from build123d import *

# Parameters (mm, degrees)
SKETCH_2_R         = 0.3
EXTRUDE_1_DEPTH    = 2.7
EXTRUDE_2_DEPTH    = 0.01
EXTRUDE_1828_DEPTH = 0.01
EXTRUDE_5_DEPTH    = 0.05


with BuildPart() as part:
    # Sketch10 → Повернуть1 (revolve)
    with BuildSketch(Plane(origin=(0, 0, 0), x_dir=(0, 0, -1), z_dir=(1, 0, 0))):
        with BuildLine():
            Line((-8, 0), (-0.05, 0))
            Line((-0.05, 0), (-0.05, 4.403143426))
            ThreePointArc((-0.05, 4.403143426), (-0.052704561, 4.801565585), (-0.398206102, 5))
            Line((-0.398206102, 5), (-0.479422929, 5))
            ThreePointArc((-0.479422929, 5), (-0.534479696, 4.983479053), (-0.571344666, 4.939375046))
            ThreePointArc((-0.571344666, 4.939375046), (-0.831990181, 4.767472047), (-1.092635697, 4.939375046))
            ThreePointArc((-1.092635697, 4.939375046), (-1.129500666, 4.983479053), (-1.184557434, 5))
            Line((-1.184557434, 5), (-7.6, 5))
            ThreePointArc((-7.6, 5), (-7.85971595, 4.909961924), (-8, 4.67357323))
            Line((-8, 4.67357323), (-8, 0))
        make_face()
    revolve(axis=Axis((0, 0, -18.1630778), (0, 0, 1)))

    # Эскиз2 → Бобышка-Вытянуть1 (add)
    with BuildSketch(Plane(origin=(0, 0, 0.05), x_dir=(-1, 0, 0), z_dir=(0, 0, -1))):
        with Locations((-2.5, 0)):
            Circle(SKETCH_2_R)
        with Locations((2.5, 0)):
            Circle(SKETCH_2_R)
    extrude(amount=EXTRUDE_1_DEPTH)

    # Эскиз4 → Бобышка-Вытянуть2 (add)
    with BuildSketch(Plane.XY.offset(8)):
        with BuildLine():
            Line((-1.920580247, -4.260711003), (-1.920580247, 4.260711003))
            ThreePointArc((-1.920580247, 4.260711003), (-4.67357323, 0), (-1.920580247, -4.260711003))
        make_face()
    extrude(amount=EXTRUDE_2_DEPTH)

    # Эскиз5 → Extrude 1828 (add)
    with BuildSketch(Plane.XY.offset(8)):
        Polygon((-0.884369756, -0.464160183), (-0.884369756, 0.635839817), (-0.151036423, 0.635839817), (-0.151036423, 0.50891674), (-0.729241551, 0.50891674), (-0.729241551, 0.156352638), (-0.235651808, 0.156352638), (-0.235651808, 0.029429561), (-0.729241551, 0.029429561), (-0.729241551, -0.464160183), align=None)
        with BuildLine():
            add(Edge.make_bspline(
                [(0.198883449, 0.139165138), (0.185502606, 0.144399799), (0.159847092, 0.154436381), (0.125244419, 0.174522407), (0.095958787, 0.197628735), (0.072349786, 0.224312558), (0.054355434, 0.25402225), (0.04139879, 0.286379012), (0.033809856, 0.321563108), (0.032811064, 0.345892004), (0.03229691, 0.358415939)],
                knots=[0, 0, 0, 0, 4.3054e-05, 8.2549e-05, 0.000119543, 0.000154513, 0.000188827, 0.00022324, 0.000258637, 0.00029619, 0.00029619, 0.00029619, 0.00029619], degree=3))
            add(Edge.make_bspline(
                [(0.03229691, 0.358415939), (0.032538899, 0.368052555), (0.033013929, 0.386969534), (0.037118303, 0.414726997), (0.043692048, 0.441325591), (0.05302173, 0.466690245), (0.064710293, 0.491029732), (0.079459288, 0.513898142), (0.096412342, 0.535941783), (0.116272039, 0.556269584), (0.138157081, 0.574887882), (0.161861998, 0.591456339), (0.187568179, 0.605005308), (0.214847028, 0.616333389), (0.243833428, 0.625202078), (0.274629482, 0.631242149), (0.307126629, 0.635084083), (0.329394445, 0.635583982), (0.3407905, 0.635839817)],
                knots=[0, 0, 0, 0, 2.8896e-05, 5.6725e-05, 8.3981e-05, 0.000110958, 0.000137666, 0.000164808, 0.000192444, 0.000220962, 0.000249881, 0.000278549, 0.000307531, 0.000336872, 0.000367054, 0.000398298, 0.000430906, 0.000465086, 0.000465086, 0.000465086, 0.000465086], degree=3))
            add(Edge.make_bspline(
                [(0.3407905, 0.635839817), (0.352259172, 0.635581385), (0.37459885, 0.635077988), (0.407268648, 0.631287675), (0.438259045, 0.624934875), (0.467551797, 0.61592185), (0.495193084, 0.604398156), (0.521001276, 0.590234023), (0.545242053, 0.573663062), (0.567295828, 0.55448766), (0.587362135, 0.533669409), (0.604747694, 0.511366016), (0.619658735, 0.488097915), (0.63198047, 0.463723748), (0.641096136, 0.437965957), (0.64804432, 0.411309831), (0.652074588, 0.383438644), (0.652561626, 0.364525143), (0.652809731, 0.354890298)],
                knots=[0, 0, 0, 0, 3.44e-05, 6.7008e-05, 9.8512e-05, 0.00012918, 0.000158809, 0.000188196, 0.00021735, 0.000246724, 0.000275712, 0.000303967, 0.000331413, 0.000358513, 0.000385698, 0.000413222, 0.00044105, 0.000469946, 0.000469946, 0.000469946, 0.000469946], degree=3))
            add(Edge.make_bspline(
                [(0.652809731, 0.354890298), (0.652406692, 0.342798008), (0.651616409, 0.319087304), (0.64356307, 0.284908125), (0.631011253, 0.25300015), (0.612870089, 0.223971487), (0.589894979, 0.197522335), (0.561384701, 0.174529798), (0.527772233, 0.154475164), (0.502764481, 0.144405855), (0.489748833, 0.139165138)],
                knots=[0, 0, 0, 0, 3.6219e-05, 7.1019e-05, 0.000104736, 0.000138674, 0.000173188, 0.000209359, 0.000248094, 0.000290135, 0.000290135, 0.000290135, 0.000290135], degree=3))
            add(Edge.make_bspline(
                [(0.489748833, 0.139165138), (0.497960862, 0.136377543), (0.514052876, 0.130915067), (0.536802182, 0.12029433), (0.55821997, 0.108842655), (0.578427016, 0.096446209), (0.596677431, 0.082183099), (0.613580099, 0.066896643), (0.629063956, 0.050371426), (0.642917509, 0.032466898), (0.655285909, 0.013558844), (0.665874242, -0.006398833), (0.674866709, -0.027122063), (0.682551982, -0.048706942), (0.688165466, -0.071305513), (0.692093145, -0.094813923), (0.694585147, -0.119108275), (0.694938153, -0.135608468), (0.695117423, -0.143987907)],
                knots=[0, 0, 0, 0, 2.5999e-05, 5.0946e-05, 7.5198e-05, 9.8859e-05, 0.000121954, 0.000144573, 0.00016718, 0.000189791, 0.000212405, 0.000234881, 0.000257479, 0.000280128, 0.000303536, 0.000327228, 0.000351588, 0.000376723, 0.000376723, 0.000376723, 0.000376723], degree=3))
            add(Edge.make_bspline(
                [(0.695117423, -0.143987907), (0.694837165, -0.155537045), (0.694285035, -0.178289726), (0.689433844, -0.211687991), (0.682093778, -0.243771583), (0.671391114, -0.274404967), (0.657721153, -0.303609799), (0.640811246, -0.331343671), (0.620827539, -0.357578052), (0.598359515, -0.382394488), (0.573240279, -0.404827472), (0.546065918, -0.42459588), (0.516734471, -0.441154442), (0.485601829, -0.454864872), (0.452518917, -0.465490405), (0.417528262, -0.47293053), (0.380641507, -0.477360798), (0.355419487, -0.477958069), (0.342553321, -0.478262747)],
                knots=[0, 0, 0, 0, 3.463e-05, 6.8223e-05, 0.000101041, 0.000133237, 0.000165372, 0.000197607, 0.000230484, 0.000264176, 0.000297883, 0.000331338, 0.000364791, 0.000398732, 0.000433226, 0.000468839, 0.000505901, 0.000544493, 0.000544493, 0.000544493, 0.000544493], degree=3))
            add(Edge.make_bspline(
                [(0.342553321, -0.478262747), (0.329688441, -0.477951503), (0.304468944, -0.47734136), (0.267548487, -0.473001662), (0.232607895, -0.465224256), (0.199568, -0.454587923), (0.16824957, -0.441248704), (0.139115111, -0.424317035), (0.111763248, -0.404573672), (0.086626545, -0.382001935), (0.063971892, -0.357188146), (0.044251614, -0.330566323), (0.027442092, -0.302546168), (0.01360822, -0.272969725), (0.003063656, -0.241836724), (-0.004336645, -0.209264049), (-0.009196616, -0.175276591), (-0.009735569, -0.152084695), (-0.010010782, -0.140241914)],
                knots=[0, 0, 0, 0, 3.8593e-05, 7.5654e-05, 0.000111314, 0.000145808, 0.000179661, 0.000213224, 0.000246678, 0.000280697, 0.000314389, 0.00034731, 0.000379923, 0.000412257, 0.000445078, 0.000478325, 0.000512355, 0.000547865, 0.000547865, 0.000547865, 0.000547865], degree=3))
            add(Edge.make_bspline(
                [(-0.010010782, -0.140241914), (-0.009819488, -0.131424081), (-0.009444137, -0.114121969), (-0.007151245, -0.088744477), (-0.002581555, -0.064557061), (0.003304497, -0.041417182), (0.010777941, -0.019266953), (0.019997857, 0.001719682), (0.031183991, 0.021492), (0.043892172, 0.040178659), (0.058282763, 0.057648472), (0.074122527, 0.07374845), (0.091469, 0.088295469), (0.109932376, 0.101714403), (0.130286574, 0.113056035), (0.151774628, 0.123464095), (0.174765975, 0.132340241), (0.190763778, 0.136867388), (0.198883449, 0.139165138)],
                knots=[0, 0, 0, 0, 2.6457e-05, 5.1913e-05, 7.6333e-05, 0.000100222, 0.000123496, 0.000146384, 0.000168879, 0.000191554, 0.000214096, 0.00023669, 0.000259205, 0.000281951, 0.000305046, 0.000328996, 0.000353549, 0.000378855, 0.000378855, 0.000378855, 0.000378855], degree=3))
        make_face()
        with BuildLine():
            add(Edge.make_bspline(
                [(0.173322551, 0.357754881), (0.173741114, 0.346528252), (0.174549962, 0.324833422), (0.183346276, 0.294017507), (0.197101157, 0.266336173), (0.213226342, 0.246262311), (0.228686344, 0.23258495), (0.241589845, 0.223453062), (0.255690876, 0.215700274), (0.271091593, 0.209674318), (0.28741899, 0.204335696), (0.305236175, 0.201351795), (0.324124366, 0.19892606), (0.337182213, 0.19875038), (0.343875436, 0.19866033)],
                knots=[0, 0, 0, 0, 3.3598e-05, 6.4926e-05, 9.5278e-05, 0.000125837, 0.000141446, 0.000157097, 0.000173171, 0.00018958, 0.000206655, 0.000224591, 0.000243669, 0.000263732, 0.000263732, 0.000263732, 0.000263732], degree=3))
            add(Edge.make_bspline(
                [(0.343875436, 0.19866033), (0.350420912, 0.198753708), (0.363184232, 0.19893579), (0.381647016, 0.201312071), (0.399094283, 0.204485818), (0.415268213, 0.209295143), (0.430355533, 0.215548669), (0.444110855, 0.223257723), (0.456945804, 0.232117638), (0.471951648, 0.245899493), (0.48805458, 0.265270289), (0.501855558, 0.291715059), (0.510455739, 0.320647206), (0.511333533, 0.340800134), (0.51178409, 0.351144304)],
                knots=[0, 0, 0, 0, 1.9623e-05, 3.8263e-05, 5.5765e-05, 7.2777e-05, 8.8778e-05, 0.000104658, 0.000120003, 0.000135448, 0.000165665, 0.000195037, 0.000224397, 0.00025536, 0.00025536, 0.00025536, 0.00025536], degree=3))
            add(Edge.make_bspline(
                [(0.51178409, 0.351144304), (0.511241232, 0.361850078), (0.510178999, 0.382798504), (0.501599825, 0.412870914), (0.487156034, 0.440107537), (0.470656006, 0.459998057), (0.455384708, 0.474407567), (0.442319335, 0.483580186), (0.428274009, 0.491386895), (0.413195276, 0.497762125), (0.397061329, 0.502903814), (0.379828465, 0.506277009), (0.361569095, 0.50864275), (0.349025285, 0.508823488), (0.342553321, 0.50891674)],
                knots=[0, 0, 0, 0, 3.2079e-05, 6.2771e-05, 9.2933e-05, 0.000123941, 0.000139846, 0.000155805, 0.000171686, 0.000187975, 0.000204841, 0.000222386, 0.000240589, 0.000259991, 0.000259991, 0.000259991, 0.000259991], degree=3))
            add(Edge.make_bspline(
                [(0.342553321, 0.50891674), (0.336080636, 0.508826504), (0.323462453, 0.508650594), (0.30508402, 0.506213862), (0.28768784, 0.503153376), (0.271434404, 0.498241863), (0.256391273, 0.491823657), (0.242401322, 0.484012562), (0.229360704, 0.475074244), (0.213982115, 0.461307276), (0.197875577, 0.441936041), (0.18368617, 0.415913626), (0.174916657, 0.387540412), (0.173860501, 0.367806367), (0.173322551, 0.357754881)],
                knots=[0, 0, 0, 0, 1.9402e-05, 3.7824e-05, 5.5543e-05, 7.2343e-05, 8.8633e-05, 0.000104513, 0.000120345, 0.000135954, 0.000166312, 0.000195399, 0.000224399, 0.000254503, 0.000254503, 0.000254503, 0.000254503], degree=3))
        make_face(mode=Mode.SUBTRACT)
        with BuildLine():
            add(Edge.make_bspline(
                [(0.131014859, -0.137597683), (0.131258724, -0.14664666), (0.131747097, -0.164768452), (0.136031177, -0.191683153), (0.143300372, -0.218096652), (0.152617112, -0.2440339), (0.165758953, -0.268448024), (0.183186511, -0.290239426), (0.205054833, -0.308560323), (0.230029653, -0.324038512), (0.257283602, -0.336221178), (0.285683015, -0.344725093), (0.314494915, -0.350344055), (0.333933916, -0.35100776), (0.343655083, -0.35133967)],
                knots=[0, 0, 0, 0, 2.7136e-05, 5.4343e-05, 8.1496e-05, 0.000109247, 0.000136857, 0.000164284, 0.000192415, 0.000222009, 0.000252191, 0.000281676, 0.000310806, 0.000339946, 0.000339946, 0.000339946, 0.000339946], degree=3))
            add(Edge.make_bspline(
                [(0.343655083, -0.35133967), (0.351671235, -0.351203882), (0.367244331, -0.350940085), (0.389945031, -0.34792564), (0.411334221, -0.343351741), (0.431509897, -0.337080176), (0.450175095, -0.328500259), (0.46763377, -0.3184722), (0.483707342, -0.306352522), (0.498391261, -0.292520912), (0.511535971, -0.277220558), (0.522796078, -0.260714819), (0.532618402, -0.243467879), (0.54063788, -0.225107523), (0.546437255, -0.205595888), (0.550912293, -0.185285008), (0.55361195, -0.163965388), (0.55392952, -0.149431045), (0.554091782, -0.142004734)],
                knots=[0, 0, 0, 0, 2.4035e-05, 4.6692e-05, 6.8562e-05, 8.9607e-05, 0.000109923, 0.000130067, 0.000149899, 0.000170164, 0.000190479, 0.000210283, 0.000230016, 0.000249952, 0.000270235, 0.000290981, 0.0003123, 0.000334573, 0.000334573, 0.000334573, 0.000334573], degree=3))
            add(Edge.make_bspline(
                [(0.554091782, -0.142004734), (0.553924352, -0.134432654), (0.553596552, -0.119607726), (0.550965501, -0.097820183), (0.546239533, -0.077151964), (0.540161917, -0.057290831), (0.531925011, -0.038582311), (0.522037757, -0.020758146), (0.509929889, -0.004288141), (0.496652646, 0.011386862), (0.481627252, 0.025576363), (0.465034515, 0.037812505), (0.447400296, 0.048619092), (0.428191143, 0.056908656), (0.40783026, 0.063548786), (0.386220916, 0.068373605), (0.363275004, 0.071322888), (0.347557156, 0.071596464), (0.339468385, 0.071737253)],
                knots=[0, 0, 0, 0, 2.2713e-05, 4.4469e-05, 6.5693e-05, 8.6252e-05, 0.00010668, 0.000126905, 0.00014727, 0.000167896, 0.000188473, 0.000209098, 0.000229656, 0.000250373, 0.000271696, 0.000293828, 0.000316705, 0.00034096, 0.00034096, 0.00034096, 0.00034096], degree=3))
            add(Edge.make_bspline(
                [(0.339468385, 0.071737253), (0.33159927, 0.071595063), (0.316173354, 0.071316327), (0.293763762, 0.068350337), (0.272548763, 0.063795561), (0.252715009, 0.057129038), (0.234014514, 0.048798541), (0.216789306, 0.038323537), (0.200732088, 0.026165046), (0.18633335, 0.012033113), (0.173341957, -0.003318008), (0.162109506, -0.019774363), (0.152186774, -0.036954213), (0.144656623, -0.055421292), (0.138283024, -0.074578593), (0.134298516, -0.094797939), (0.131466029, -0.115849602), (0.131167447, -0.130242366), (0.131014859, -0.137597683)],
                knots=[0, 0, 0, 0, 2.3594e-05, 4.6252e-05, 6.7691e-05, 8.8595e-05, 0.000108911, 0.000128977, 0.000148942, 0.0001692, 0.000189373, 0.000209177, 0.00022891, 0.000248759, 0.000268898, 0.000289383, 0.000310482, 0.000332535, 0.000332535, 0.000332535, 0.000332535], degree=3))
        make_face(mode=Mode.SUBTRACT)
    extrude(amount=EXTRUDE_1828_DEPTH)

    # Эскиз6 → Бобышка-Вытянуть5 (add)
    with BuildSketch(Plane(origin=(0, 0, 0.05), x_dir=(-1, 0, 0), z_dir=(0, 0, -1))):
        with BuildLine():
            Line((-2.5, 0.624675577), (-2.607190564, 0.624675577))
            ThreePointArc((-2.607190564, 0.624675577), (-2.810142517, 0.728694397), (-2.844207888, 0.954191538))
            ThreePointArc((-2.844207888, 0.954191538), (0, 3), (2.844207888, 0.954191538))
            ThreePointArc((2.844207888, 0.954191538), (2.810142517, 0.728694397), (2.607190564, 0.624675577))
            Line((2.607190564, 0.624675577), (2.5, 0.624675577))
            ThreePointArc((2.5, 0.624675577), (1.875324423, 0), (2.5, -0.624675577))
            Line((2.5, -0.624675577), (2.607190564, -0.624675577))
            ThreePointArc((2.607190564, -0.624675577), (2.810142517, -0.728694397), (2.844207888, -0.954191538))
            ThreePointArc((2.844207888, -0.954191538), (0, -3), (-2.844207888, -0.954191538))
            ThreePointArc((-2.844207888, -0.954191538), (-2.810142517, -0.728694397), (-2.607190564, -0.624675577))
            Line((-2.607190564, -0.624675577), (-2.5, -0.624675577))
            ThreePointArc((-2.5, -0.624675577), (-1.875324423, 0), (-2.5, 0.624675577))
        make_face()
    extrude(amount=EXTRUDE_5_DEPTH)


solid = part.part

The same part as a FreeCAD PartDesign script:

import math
import FreeCAD as App
import Part
import Sketcher


def add_polygon(sketch, points):
    """Adds a closed chain of lines whose ends are joined by coincident constraints."""
    first, n = sketch.GeometryCount, len(points)
    for a, b in zip(points, points[1:] + points[:1]):
        sketch.addGeometry(Part.LineSegment(App.Vector(*a, 0), App.Vector(*b, 0)), False)
    for i in range(n):
        sketch.addConstraint(Sketcher.Constraint("Coincident", first + i, 2, first + (i + 1) % n, 1))

doc = App.newDocument("Part")
params = doc.addObject("Spreadsheet::Sheet", "Params")
for row, (alias, value) in enumerate([
    ("sketch1_radius", "0.4 mm"),
    ("sketch1_radius2", "0.1 mm"),
    ("sketch1_height", "7.95 mm"),
    ("revolution_angle", "360 deg"),
    ("sketch2_diameter", "0.6 mm"),
    ("pad1_length", "2.7 mm"),
    ("pad2_length", "0.01 mm"),
    ("sketch4_height", "1.1 mm"),
    ("pad3_length", "0.01 mm"),
    ("sketch5_radius", "3 mm"),
    ("sketch5_radius2", "0.25 mm"),
    ("pad4_length", "0.05 mm"),
], start=1):
    params.set(f"A{row}", alias)
    params.set(f"B{row}", "=" + value)
    params.setAlias(f"B{row}", alias)

body = doc.addObject("PartDesign::Body", "Body")

sketch1 = doc.addObject("Sketcher::SketchObject", "Sketch")
body.addObject(sketch1)
sketch1.AttachmentSupport = (doc.YZ_Plane, [""])
sketch1.MapMode = "FlatFace"
sketch1.addGeometry(Part.LineSegment(App.Vector(0, 8, 0), App.Vector(0, 0.05, 0)), False)
sketch1.addGeometry(Part.LineSegment(App.Vector(0, 0.05, 0), App.Vector(4.403143, 0.05, 0)), False)
sketch1.addGeometry(Part.ArcOfCircle(Part.Circle(App.Vector(4.6, 0.398206, 0), App.Vector(0, 0, 1), 0.4), math.radians(-119.481429), math.radians(0)), False)
sketch1.addGeometry(Part.LineSegment(App.Vector(5, 0.398206, 0), App.Vector(5, 0.479423, 0)), False)
sketch1.addGeometry(Part.ArcOfCircle(Part.Circle(App.Vector(4.9, 0.479423, 0), App.Vector(0, 0, 1), 0.1), math.radians(0.000001), math.radians(66.811933)), False)
sketch1.addGeometry(Part.ArcOfCircle(Part.Circle(App.Vector(5.051024, 0.83199, 0), App.Vector(0, 0, 1), 0.283552), math.radians(113.188066), math.radians(246.811933)), False)
sketch1.addGeometry(Part.ArcOfCircle(Part.Circle(App.Vector(4.9, 1.184557, 0), App.Vector(0, 0, 1), 0.1), math.radians(-66.811934), math.radians(0)), False)
sketch1.addGeometry(Part.LineSegment(App.Vector(5, 1.184557, 0), App.Vector(5, 7.6, 0)), False)
sketch1.addGeometry(Part.ArcOfCircle(Part.Circle(App.Vector(4.600058, 7.606814, 0), App.Vector(0, 0, 1), 0.4), math.radians(-0.976029), math.radians(79.409522)), False)
sketch1.addGeometry(Part.LineSegment(App.Vector(4.673573, 8, 0), App.Vector(0, 8, 0)), False)
sketch1.addConstraint(Sketcher.Constraint("Coincident", 0, 2, 1, 1))
sketch1.addConstraint(Sketcher.Constraint("Coincident", 1, 2, 2, 1))
sketch1.addConstraint(Sketcher.Constraint("Tangent", 2, 2, 3, 1))
sketch1.addConstraint(Sketcher.Constraint("Tangent", 3, 2, 4, 1))
sketch1.addConstraint(Sketcher.Constraint("Tangent", 4, 2, 5, 2))
sketch1.addConstraint(Sketcher.Constraint("Tangent", 5, 1, 6, 1))
sketch1.addConstraint(Sketcher.Constraint("Tangent", 6, 2, 7, 1))
sketch1.addConstraint(Sketcher.Constraint("Coincident", 7, 2, 8, 1))
sketch1.addConstraint(Sketcher.Constraint("Coincident", 8, 2, 9, 1))
sketch1.addConstraint(Sketcher.Constraint("Coincident", 9, 2, 0, 1))
sketch1.addConstraint(Sketcher.Constraint("Vertical", 0))
sketch1.addConstraint(Sketcher.Constraint("Horizontal", 1))
sketch1.addConstraint(Sketcher.Constraint("Vertical", 3))
sketch1.addConstraint(Sketcher.Constraint("Vertical", 7))
sketch1.addConstraint(Sketcher.Constraint("Horizontal", 9))
sketch1.addConstraint(Sketcher.Constraint("Equal", 4, 6))
sketch1.addConstraint(Sketcher.Constraint("Equal", 2, 8))
sketch1.addConstraint(Sketcher.Constraint("PointOnObject", 0, 2, -2))
sketch1.addConstraint(Sketcher.Constraint("Vertical", 4, 3, 6, 3))
sketch1.addConstraint(Sketcher.Constraint("Radius", 2, 0.4))
sketch1.addConstraint(Sketcher.Constraint("Radius", 4, 0.1))
sketch1.addConstraint(Sketcher.Constraint("DistanceX", -1, 1, 2, 2, 5.0))
sketch1.addConstraint(Sketcher.Constraint("DistanceY", -1, 1, 8, 2, 8.0))
sketch1.addConstraint(Sketcher.Constraint("DistanceY", 0, 2, 0, 1, 7.95))
sketch1.addConstraint(Sketcher.Constraint("DistanceY", -1, 1, 7, 2, 7.6))
sketch1.addConstraint(Sketcher.Constraint("Radius", 5, 0.283552))
sketch1.addConstraint(Sketcher.Constraint("DistanceX", 8, 2, 5, 1, 0.265802))
sketch1.addConstraint(Sketcher.Constraint("DistanceX", 1, 1, 1, 2, 4.403143))
sketch1.addConstraint(Sketcher.Constraint("DistanceX", 9, 2, 9, 1, 4.673573))
sketch1.addConstraint(Sketcher.Constraint("DistanceY", 3, 1, 3, 2, 0.081217))
sketch1.setExpression("Constraints[19]", "Params.sketch1_radius")
sketch1.setExpression("Constraints[20]", "Params.sketch1_radius2")
sketch1.setExpression("Constraints[23]", "Params.sketch1_height")
revolution = doc.addObject("PartDesign::Revolution", "Revolution")
body.addObject(revolution)
revolution.Profile = sketch1
revolution.ReferenceAxis = (sketch1, ["V_Axis"])
revolution.setExpression("Angle", "Params.revolution_angle")

sketch2 = doc.addObject("Sketcher::SketchObject", "Sketch001")
body.addObject(sketch2)
sketch2.AttachmentSupport = (doc.XY_Plane, [""])
sketch2.MapMode = "FlatFace"
sketch2.AttachmentOffset = App.Placement(App.Vector(0, 0, 0.05), App.Rotation())
sketch2.addGeometry(Part.Circle(App.Vector(2.5, 0, 0), App.Vector(0, 0, 1), 0.3), False)
sketch2.addGeometry(Part.Circle(App.Vector(-2.5, 0, 0), App.Vector(0, 0, 1), 0.3), False)
sketch2.addConstraint(Sketcher.Constraint("Equal", 0, 1))
sketch2.addConstraint(Sketcher.Constraint("Symmetric", 0, 3, 1, 3, -1, 1))
sketch2.addConstraint(Sketcher.Constraint("PointOnObject", 0, 3, -1))
sketch2.addConstraint(Sketcher.Constraint("Diameter", 0, 0.6))
sketch2.addConstraint(Sketcher.Constraint("DistanceX", 1, 3, 0, 3, 5.0))
sketch2.setExpression("Constraints[3]", "Params.sketch2_diameter")
pad1 = doc.addObject("PartDesign::Pad", "Pad")
body.addObject(pad1)
pad1.Profile = sketch2
pad1.setExpression("Length", "Params.pad1_length")
pad1.Reversed = True

sketch3 = doc.addObject("Sketcher::SketchObject", "Sketch002")
body.addObject(sketch3)
sketch3.AttachmentSupport = (doc.XY_Plane, [""])
sketch3.MapMode = "FlatFace"
sketch3.AttachmentOffset = App.Placement(App.Vector(0, 0, 8), App.Rotation())
sketch3.addGeometry(Part.LineSegment(App.Vector(-1.92058, -4.260711, 0), App.Vector(-1.92058, 4.260711, 0)), False)
sketch3.addGeometry(Part.ArcOfCircle(Part.Circle(App.Vector(0, 0, 0), App.Vector(0, 0, 1), 4.673573), math.radians(114.264195), math.radians(245.735805)), False)
sketch3.addConstraint(Sketcher.Constraint("Coincident", 0, 1, 1, 2))
sketch3.addConstraint(Sketcher.Constraint("Coincident", 1, 1, 0, 2))
sketch3.addConstraint(Sketcher.Constraint("Vertical", 0))
sketch3.addConstraint(Sketcher.Constraint("Coincident", 1, 3, -1, 1))
sketch3.addConstraint(Sketcher.Constraint("Radius", 1, 4.673573))
sketch3.addConstraint(Sketcher.Constraint("DistanceY", 0, 1, 0, 2, 8.521422))
pad2 = doc.addObject("PartDesign::Pad", "Pad001")
body.addObject(pad2)
pad2.Profile = sketch3
pad2.setExpression("Length", "Params.pad2_length")

sketch4 = doc.addObject("Sketcher::SketchObject", "Sketch003")
body.addObject(sketch4)
sketch4.AttachmentSupport = (doc.XY_Plane, [""])
sketch4.MapMode = "FlatFace"
sketch4.AttachmentOffset = App.Placement(App.Vector(0, 0, 8), App.Rotation())
add_polygon(sketch4, [(-0.88437, 0.63584), (-0.88437, -0.46416), (-0.729242, -0.46416), (-0.729242, 0.02943), (-0.235652, 0.02943), (-0.235652, 0.156353), (-0.729242, 0.156353), (-0.729242, 0.508917), (-0.151036, 0.508917), (-0.151036, 0.63584)])
sketch4.addGeometry(Part.BSplineCurve([App.Vector(0.198883, 0.139165, 0), App.Vector(0.185503, 0.1444, 0), App.Vector(0.159847, 0.154436, 0), App.Vector(0.125244, 0.174522, 0), App.Vector(0.095959, 0.197629, 0), App.Vector(0.07235, 0.224313, 0), App.Vector(0.054355, 0.254022, 0), App.Vector(0.041399, 0.286379, 0), App.Vector(0.03381, 0.321563, 0), App.Vector(0.032811, 0.345892, 0), App.Vector(0.032297, 0.358416, 0)], [4, 1, 1, 1, 1, 1, 1, 1, 4], [0, 0.000043054, 0.000082549, 0.000119543, 0.000154513, 0.000188827, 0.00022324, 0.000258637, 0.00029619], False, 3, [1, 1, 1, 1, 1, 1, 1, 1, 1, 1, 1], False), False)
sketch4.addGeometry(Part.BSplineCurve([App.Vector(-0.010011, -0.140242, 0), App.Vector(-0.009819, -0.131424, 0), App.Vector(-0.009444, -0.114122, 0), App.Vector(-0.007151, -0.088744, 0), App.Vector(-0.002582, -0.064557, 0), App.Vector(0.003304, -0.041417, 0), App.Vector(0.010778, -0.019267, 0), App.Vector(0.019998, 0.00172, 0), App.Vector(0.031184, 0.021492, 0), App.Vector(0.043892, 0.040179, 0), App.Vector(0.058283, 0.057648, 0), App.Vector(0.074123, 0.073748, 0), App.Vector(0.091469, 0.088295, 0), App.Vector(0.109932, 0.101714, 0), App.Vector(0.130287, 0.113056, 0), App.Vector(0.151775, 0.123464, 0), App.Vector(0.174766, 0.13234, 0), App.Vector(0.190764, 0.136867, 0), App.Vector(0.198883, 0.139165, 0)], [4, 1, 1, 1, 1, 1, 1, 1, 1, 1, 1, 1, 1, 1, 1, 1, 4], [0, 0.000026457, 0.000051913, 0.000076333, 0.000100222, 0.000123496, 0.000146384, 0.000168879, 0.000191554, 0.000214096, 0.00023669, 0.000259205, 0.000281951, 0.000305046, 0.000328996, 0.000353549, 0.000378855], False, 3, [1, 1, 1, 1, 1, 1, 1, 1, 1, 1, 1, 1, 1, 1, 1, 1, 1, 1, 1], False), False)
sketch4.addGeometry(Part.BSplineCurve([App.Vector(0.342553, -0.478263, 0), App.Vector(0.329688, -0.477952, 0), App.Vector(0.304469, -0.477341, 0), App.Vector(0.267548, -0.473002, 0), App.Vector(0.232608, -0.465224, 0), App.Vector(0.199568, -0.454588, 0), App.Vector(0.16825, -0.441249, 0), App.Vector(0.139115, -0.424317, 0), App.Vector(0.111763, -0.404574, 0), App.Vector(0.086627, -0.382002, 0), App.Vector(0.063972, -0.357188, 0), App.Vector(0.044252, -0.330566, 0), App.Vector(0.027442, -0.302546, 0), App.Vector(0.013608, -0.27297, 0), App.Vector(0.003064, -0.241837, 0), App.Vector(-0.004337, -0.209264, 0), App.Vector(-0.009197, -0.175277, 0), App.Vector(-0.009736, -0.152085, 0), App.Vector(-0.010011, -0.140242, 0)], [4, 1, 1, 1, 1, 1, 1, 1, 1, 1, 1, 1, 1, 1, 1, 1, 4], [0, 0.000038593, 0.000075654, 0.000111314, 0.000145808, 0.000179661, 0.000213224, 0.000246678, 0.000280697, 0.000314389, 0.00034731, 0.000379923, 0.000412257, 0.000445078, 0.000478325, 0.000512355, 0.000547865], False, 3, [1, 1, 1, 1, 1, 1, 1, 1, 1, 1, 1, 1, 1, 1, 1, 1, 1, 1, 1], False), False)
sketch4.addGeometry(Part.BSplineCurve([App.Vector(0.695117, -0.143988, 0), App.Vector(0.694837, -0.155537, 0), App.Vector(0.694285, -0.17829, 0), App.Vector(0.689434, -0.211688, 0), App.Vector(0.682094, -0.243772, 0), App.Vector(0.671391, -0.274405, 0), App.Vector(0.657721, -0.30361, 0), App.Vector(0.640811, -0.331344, 0), App.Vector(0.620828, -0.357578, 0), App.Vector(0.59836, -0.382394, 0), App.Vector(0.57324, -0.404827, 0), App.Vector(0.546066, -0.424596, 0), App.Vector(0.516734, -0.441154, 0), App.Vector(0.485602, -0.454865, 0), App.Vector(0.452519, -0.46549, 0), App.Vector(0.417528, -0.472931, 0), App.Vector(0.380642, -0.477361, 0), App.Vector(0.355419, -0.477958, 0), App.Vector(0.342553, -0.478263, 0)], [4, 1, 1, 1, 1, 1, 1, 1, 1, 1, 1, 1, 1, 1, 1, 1, 4], [0, 0.00003463, 0.000068223, 0.000101041, 0.000133237, 0.000165372, 0.000197607, 0.000230484, 0.000264176, 0.000297883, 0.000331338, 0.000364791, 0.000398732, 0.000433226, 0.000468839, 0.000505901, 0.000544493], False, 3, [1, 1, 1, 1, 1, 1, 1, 1, 1, 1, 1, 1, 1, 1, 1, 1, 1, 1, 1], False), False)
sketch4.addGeometry(Part.BSplineCurve([App.Vector(0.489749, 0.139165, 0), App.Vector(0.497961, 0.136378, 0), App.Vector(0.514053, 0.130915, 0), App.Vector(0.536802, 0.120294, 0), App.Vector(0.55822, 0.108843, 0), App.Vector(0.578427, 0.096446, 0), App.Vector(0.596677, 0.082183, 0), App.Vector(0.61358, 0.066897, 0), App.Vector(0.629064, 0.050371, 0), App.Vector(0.642918, 0.032467, 0), App.Vector(0.655286, 0.013559, 0), App.Vector(0.665874, -0.006399, 0), App.Vector(0.674867, -0.027122, 0), App.Vector(0.682552, -0.048707, 0), App.Vector(0.688165, -0.071306, 0), App.Vector(0.692093, -0.094814, 0), App.Vector(0.694585, -0.119108, 0), App.Vector(0.694938, -0.135608, 0), App.Vector(0.695117, -0.143988, 0)], [4, 1, 1, 1, 1, 1, 1, 1, 1, 1, 1, 1, 1, 1, 1, 1, 4], [0, 0.000025999, 0.000050946, 0.000075198, 0.000098859, 0.000121954, 0.000144573, 0.00016718, 0.000189791, 0.000212405, 0.000234881, 0.000257479, 0.000280128, 0.000303536, 0.000327228, 0.000351588, 0.000376723], False, 3, [1, 1, 1, 1, 1, 1, 1, 1, 1, 1, 1, 1, 1, 1, 1, 1, 1, 1, 1], False), False)
sketch4.addGeometry(Part.BSplineCurve([App.Vector(0.65281, 0.35489, 0), App.Vector(0.652407, 0.342798, 0), App.Vector(0.651616, 0.319087, 0), App.Vector(0.643563, 0.284908, 0), App.Vector(0.631011, 0.253, 0), App.Vector(0.61287, 0.223971, 0), App.Vector(0.589895, 0.197522, 0), App.Vector(0.561385, 0.17453, 0), App.Vector(0.527772, 0.154475, 0), App.Vector(0.502764, 0.144406, 0), App.Vector(0.489749, 0.139165, 0)], [4, 1, 1, 1, 1, 1, 1, 1, 4], [0, 0.000036219, 0.000071019, 0.000104736, 0.000138674, 0.000173188, 0.000209359, 0.000248094, 0.000290135], False, 3, [1, 1, 1, 1, 1, 1, 1, 1, 1, 1, 1], False), False)
sketch4.addGeometry(Part.BSplineCurve([App.Vector(0.34079, 0.63584, 0), App.Vector(0.352259, 0.635581, 0), App.Vector(0.374599, 0.635078, 0), App.Vector(0.407269, 0.631288, 0), App.Vector(0.438259, 0.624935, 0), App.Vector(0.467552, 0.615922, 0), App.Vector(0.495193, 0.604398, 0), App.Vector(0.521001, 0.590234, 0), App.Vector(0.545242, 0.573663, 0), App.Vector(0.567296, 0.554488, 0), App.Vector(0.587362, 0.533669, 0), App.Vector(0.604748, 0.511366, 0), App.Vector(0.619659, 0.488098, 0), App.Vector(0.63198, 0.463724, 0), App.Vector(0.641096, 0.437966, 0), App.Vector(0.648044, 0.41131, 0), App.Vector(0.652075, 0.383439, 0), App.Vector(0.652562, 0.364525, 0), App.Vector(0.65281, 0.35489, 0)], [4, 1, 1, 1, 1, 1, 1, 1, 1, 1, 1, 1, 1, 1, 1, 1, 4], [0, 0.0000344, 0.000067008, 0.000098512, 0.00012918, 0.000158809, 0.000188196, 0.00021735, 0.000246724, 0.000275712, 0.000303967, 0.000331413, 0.000358513, 0.000385698, 0.000413222, 0.00044105, 0.000469946], False, 3, [1, 1, 1, 1, 1, 1, 1, 1, 1, 1, 1, 1, 1, 1, 1, 1, 1, 1, 1], False), False)
sketch4.addGeometry(Part.BSplineCurve([App.Vector(0.032297, 0.358416, 0), App.Vector(0.032539, 0.368053, 0), App.Vector(0.033014, 0.38697, 0), App.Vector(0.037118, 0.414727, 0), App.Vector(0.043692, 0.441326, 0), App.Vector(0.053022, 0.46669, 0), App.Vector(0.06471, 0.49103, 0), App.Vector(0.079459, 0.513898, 0), App.Vector(0.096412, 0.535942, 0), App.Vector(0.116272, 0.55627, 0), App.Vector(0.138157, 0.574888, 0), App.Vector(0.161862, 0.591456, 0), App.Vector(0.187568, 0.605005, 0), App.Vector(0.214847, 0.616333, 0), App.Vector(0.243833, 0.625202, 0), App.Vector(0.274629, 0.631242, 0), App.Vector(0.307127, 0.635084, 0), App.Vector(0.329394, 0.635584, 0), App.Vector(0.34079, 0.63584, 0)], [4, 1, 1, 1, 1, 1, 1, 1, 1, 1, 1, 1, 1, 1, 1, 1, 4], [0, 0.000028896, 0.000056725, 0.000083981, 0.000110958, 0.000137666, 0.000164808, 0.000192444, 0.000220962, 0.000249881, 0.000278549, 0.000307531, 0.000336872, 0.000367054, 0.000398298, 0.000430906, 0.000465086], False, 3, [1, 1, 1, 1, 1, 1, 1, 1, 1, 1, 1, 1, 1, 1, 1, 1, 1, 1, 1], False), False)
sketch4.addGeometry(Part.BSplineCurve([App.Vector(0.339468, 0.071737, 0), App.Vector(0.331599, 0.071595, 0), App.Vector(0.316173, 0.071316, 0), App.Vector(0.293764, 0.06835, 0), App.Vector(0.272549, 0.063796, 0), App.Vector(0.252715, 0.057129, 0), App.Vector(0.234015, 0.048799, 0), App.Vector(0.216789, 0.038324, 0), App.Vector(0.200732, 0.026165, 0), App.Vector(0.186333, 0.012033, 0), App.Vector(0.173342, -0.003318, 0), App.Vector(0.16211, -0.019774, 0), App.Vector(0.152187, -0.036954, 0), App.Vector(0.144657, -0.055421, 0), App.Vector(0.138283, -0.074579, 0), App.Vector(0.134299, -0.094798, 0), App.Vector(0.131466, -0.11585, 0), App.Vector(0.131167, -0.130242, 0), App.Vector(0.131015, -0.137598, 0)], [4, 1, 1, 1, 1, 1, 1, 1, 1, 1, 1, 1, 1, 1, 1, 1, 4], [0, 0.000023594, 0.000046252, 0.000067691, 0.000088595, 0.000108911, 0.000128977, 0.000148942, 0.0001692, 0.000189373, 0.000209177, 0.00022891, 0.000248759, 0.000268898, 0.000289383, 0.000310482, 0.000332535], False, 3, [1, 1, 1, 1, 1, 1, 1, 1, 1, 1, 1, 1, 1, 1, 1, 1, 1, 1, 1], False), False)
sketch4.addGeometry(Part.BSplineCurve([App.Vector(0.554092, -0.142005, 0), App.Vector(0.553924, -0.134433, 0), App.Vector(0.553597, -0.119608, 0), App.Vector(0.550966, -0.09782, 0), App.Vector(0.54624, -0.077152, 0), App.Vector(0.540162, -0.057291, 0), App.Vector(0.531925, -0.038582, 0), App.Vector(0.522038, -0.020758, 0), App.Vector(0.50993, -0.004288, 0), App.Vector(0.496653, 0.011387, 0), App.Vector(0.481627, 0.025576, 0), App.Vector(0.465035, 0.037813, 0), App.Vector(0.4474, 0.048619, 0), App.Vector(0.428191, 0.056909, 0), App.Vector(0.40783, 0.063549, 0), App.Vector(0.386221, 0.068374, 0), App.Vector(0.363275, 0.071323, 0), App.Vector(0.347557, 0.071596, 0), App.Vector(0.339468, 0.071737, 0)], [4, 1, 1, 1, 1, 1, 1, 1, 1, 1, 1, 1, 1, 1, 1, 1, 4], [0, 0.000022713, 0.000044469, 0.000065693, 0.000086252, 0.00010668, 0.000126905, 0.00014727, 0.000167896, 0.000188473, 0.000209098, 0.000229656, 0.000250373, 0.000271696, 0.000293828, 0.000316705, 0.00034096], False, 3, [1, 1, 1, 1, 1, 1, 1, 1, 1, 1, 1, 1, 1, 1, 1, 1, 1, 1, 1], False), False)
sketch4.addGeometry(Part.BSplineCurve([App.Vector(0.343655, -0.35134, 0), App.Vector(0.351671, -0.351204, 0), App.Vector(0.367244, -0.35094, 0), App.Vector(0.389945, -0.347926, 0), App.Vector(0.411334, -0.343352, 0), App.Vector(0.43151, -0.33708, 0), App.Vector(0.450175, -0.3285, 0), App.Vector(0.467634, -0.318472, 0), App.Vector(0.483707, -0.306353, 0), App.Vector(0.498391, -0.292521, 0), App.Vector(0.511536, -0.277221, 0), App.Vector(0.522796, -0.260715, 0), App.Vector(0.532618, -0.243468, 0), App.Vector(0.540638, -0.225108, 0), App.Vector(0.546437, -0.205596, 0), App.Vector(0.550912, -0.185285, 0), App.Vector(0.553612, -0.163965, 0), App.Vector(0.55393, -0.149431, 0), App.Vector(0.554092, -0.142005, 0)], [4, 1, 1, 1, 1, 1, 1, 1, 1, 1, 1, 1, 1, 1, 1, 1, 4], [0, 0.000024035, 0.000046692, 0.000068562, 0.000089607, 0.000109923, 0.000130067, 0.000149899, 0.000170164, 0.000190479, 0.000210283, 0.000230016, 0.000249952, 0.000270235, 0.000290981, 0.0003123, 0.000334573], False, 3, [1, 1, 1, 1, 1, 1, 1, 1, 1, 1, 1, 1, 1, 1, 1, 1, 1, 1, 1], False), False)
sketch4.addGeometry(Part.BSplineCurve([App.Vector(0.131015, -0.137598, 0), App.Vector(0.131259, -0.146647, 0), App.Vector(0.131747, -0.164768, 0), App.Vector(0.136031, -0.191683, 0), App.Vector(0.1433, -0.218097, 0), App.Vector(0.152617, -0.244034, 0), App.Vector(0.165759, -0.268448, 0), App.Vector(0.183187, -0.290239, 0), App.Vector(0.205055, -0.30856, 0), App.Vector(0.23003, -0.324039, 0), App.Vector(0.257284, -0.336221, 0), App.Vector(0.285683, -0.344725, 0), App.Vector(0.314495, -0.350344, 0), App.Vector(0.333934, -0.351008, 0), App.Vector(0.343655, -0.35134, 0)], [4, 1, 1, 1, 1, 1, 1, 1, 1, 1, 1, 1, 4], [0, 0.000027136, 0.000054343, 0.000081496, 0.000109247, 0.000136857, 0.000164284, 0.000192415, 0.000222009, 0.000252191, 0.000281676, 0.000310806, 0.000339946], False, 3, [1, 1, 1, 1, 1, 1, 1, 1, 1, 1, 1, 1, 1, 1, 1], False), False)
sketch4.addGeometry(Part.BSplineCurve([App.Vector(0.342553, 0.508917, 0), App.Vector(0.336081, 0.508827, 0), App.Vector(0.323462, 0.508651, 0), App.Vector(0.305084, 0.506214, 0), App.Vector(0.287688, 0.503153, 0), App.Vector(0.271434, 0.498242, 0), App.Vector(0.256391, 0.491824, 0), App.Vector(0.242401, 0.484013, 0), App.Vector(0.229361, 0.475074, 0), App.Vector(0.213982, 0.461307, 0), App.Vector(0.197876, 0.441936, 0), App.Vector(0.183686, 0.415914, 0), App.Vector(0.174917, 0.38754, 0), App.Vector(0.173861, 0.367806, 0), App.Vector(0.173323, 0.357755, 0)], [4, 1, 1, 1, 1, 1, 1, 1, 1, 1, 1, 1, 4], [0, 0.000019402, 0.000037824, 0.000055543, 0.000072343, 0.000088633, 0.000104513, 0.000120345, 0.000135954, 0.000166312, 0.000195399, 0.000224399, 0.000254503], False, 3, [1, 1, 1, 1, 1, 1, 1, 1, 1, 1, 1, 1, 1, 1, 1], False), False)
sketch4.addGeometry(Part.BSplineCurve([App.Vector(0.511784, 0.351144, 0), App.Vector(0.511241, 0.36185, 0), App.Vector(0.510179, 0.382799, 0), App.Vector(0.5016, 0.412871, 0), App.Vector(0.487156, 0.440108, 0), App.Vector(0.470656, 0.459998, 0), App.Vector(0.455385, 0.474408, 0), App.Vector(0.442319, 0.48358, 0), App.Vector(0.428274, 0.491387, 0), App.Vector(0.413195, 0.497762, 0), App.Vector(0.397061, 0.502904, 0), App.Vector(0.379828, 0.506277, 0), App.Vector(0.361569, 0.508643, 0), App.Vector(0.349025, 0.508823, 0), App.Vector(0.342553, 0.508917, 0)], [4, 1, 1, 1, 1, 1, 1, 1, 1, 1, 1, 1, 4], [0, 0.000032079, 0.000062771, 0.000092933, 0.000123941, 0.000139846, 0.000155805, 0.000171686, 0.000187975, 0.000204841, 0.000222386, 0.000240589, 0.000259991], False, 3, [1, 1, 1, 1, 1, 1, 1, 1, 1, 1, 1, 1, 1, 1, 1], False), False)
sketch4.addGeometry(Part.BSplineCurve([App.Vector(0.343875, 0.19866, 0), App.Vector(0.350421, 0.198754, 0), App.Vector(0.363184, 0.198936, 0), App.Vector(0.381647, 0.201312, 0), App.Vector(0.399094, 0.204486, 0), App.Vector(0.415268, 0.209295, 0), App.Vector(0.430356, 0.215549, 0), App.Vector(0.444111, 0.223258, 0), App.Vector(0.456946, 0.232118, 0), App.Vector(0.471952, 0.245899, 0), App.Vector(0.488055, 0.26527, 0), App.Vector(0.501856, 0.291715, 0), App.Vector(0.510456, 0.320647, 0), App.Vector(0.511334, 0.3408, 0), App.Vector(0.511784, 0.351144, 0)], [4, 1, 1, 1, 1, 1, 1, 1, 1, 1, 1, 1, 4], [0, 0.000019623, 0.000038263, 0.000055765, 0.000072777, 0.000088778, 0.000104658, 0.000120003, 0.000135448, 0.000165665, 0.000195037, 0.000224397, 0.00025536], False, 3, [1, 1, 1, 1, 1, 1, 1, 1, 1, 1, 1, 1, 1, 1, 1], False), False)
sketch4.addGeometry(Part.BSplineCurve([App.Vector(0.173323, 0.357755, 0), App.Vector(0.173741, 0.346528, 0), App.Vector(0.17455, 0.324833, 0), App.Vector(0.183346, 0.294018, 0), App.Vector(0.197101, 0.266336, 0), App.Vector(0.213226, 0.246262, 0), App.Vector(0.228686, 0.232585, 0), App.Vector(0.24159, 0.223453, 0), App.Vector(0.255691, 0.2157, 0), App.Vector(0.271092, 0.209674, 0), App.Vector(0.287419, 0.204336, 0), App.Vector(0.305236, 0.201352, 0), App.Vector(0.324124, 0.198926, 0), App.Vector(0.337182, 0.19875, 0), App.Vector(0.343875, 0.19866, 0)], [4, 1, 1, 1, 1, 1, 1, 1, 1, 1, 1, 1, 4], [0, 0.000033598, 0.000064926, 0.000095278, 0.000125837, 0.000141446, 0.000157097, 0.000173171, 0.00018958, 0.000206655, 0.000224591, 0.000243669, 0.000263732], False, 3, [1, 1, 1, 1, 1, 1, 1, 1, 1, 1, 1, 1, 1, 1, 1], False), False)
sketch4.addConstraint(Sketcher.Constraint("Block", 10))
sketch4.addConstraint(Sketcher.Constraint("Block", 11))
sketch4.addConstraint(Sketcher.Constraint("Block", 12))
sketch4.addConstraint(Sketcher.Constraint("Block", 13))
sketch4.addConstraint(Sketcher.Constraint("Block", 14))
sketch4.addConstraint(Sketcher.Constraint("Block", 15))
sketch4.addConstraint(Sketcher.Constraint("Block", 16))
sketch4.addConstraint(Sketcher.Constraint("Block", 17))
sketch4.addConstraint(Sketcher.Constraint("Block", 18))
sketch4.addConstraint(Sketcher.Constraint("Block", 19))
sketch4.addConstraint(Sketcher.Constraint("Block", 20))
sketch4.addConstraint(Sketcher.Constraint("Block", 21))
sketch4.addConstraint(Sketcher.Constraint("Block", 22))
sketch4.addConstraint(Sketcher.Constraint("Block", 23))
sketch4.addConstraint(Sketcher.Constraint("Block", 24))
sketch4.addConstraint(Sketcher.Constraint("Block", 25))
sketch4.addConstraint(Sketcher.Constraint("Vertical", 0))
sketch4.addConstraint(Sketcher.Constraint("Horizontal", 1))
sketch4.addConstraint(Sketcher.Constraint("Vertical", 2))
sketch4.addConstraint(Sketcher.Constraint("Horizontal", 3))
sketch4.addConstraint(Sketcher.Constraint("Vertical", 4))
sketch4.addConstraint(Sketcher.Constraint("Horizontal", 5))
sketch4.addConstraint(Sketcher.Constraint("Vertical", 6))
sketch4.addConstraint(Sketcher.Constraint("Horizontal", 7))
sketch4.addConstraint(Sketcher.Constraint("Vertical", 8))
sketch4.addConstraint(Sketcher.Constraint("Horizontal", 9))
sketch4.addConstraint(Sketcher.Constraint("Vertical", 2, 2, 5, 2))
sketch4.addConstraint(Sketcher.Constraint("Equal", 5, 2))
sketch4.addConstraint(Sketcher.Constraint("Equal", 4, 8))
sketch4.addConstraint(Sketcher.Constraint("DistanceY", 0, 2, 0, 1, 1.1))
sketch4.addConstraint(Sketcher.Constraint("DistanceX", 1, 1, 1, 2, 0.155128))
sketch4.addConstraint(Sketcher.Constraint("DistanceX", 3, 1, 3, 2, 0.49359))
sketch4.addConstraint(Sketcher.Constraint("DistanceX", 7, 1, 7, 2, 0.578205))
sketch4.addConstraint(Sketcher.Constraint("DistanceY", 4, 1, 4, 2, 0.126923))
sketch4.addConstraint(Sketcher.Constraint("DistanceX", 0, 2, -1, 1, 0.88437))
sketch4.addConstraint(Sketcher.Constraint("DistanceY", 0, 2, -1, 1, 0.46416))
sketch4.setExpression("Constraints[39]", "Params.sketch4_height")
pad3 = doc.addObject("PartDesign::Pad", "Pad002")
body.addObject(pad3)
pad3.Profile = sketch4
pad3.setExpression("Length", "Params.pad3_length")

sketch5 = doc.addObject("Sketcher::SketchObject", "Sketch004")
body.addObject(sketch5)
sketch5.AttachmentSupport = (doc.XY_Plane, [""])
sketch5.MapMode = "FlatFace"
sketch5.AttachmentOffset = App.Placement(App.Vector(0, 0, 0.05), App.Rotation())
sketch5.addGeometry(Part.LineSegment(App.Vector(2.607191, 0.624676, 0), App.Vector(2.5, 0.624676, 0)), False)
sketch5.addGeometry(Part.ArcOfCircle(Part.Circle(App.Vector(2.5, 0, 0), App.Vector(0, 0, 1), 0.624676), math.radians(90), math.radians(270)), False)
sketch5.addGeometry(Part.LineSegment(App.Vector(2.5, -0.624676, 0), App.Vector(2.607191, -0.624676, 0)), False)
sketch5.addGeometry(Part.ArcOfCircle(Part.Circle(App.Vector(2.607191, -0.874676, 0), App.Vector(0, 0, 1), 0.25), math.radians(-18.545875), math.radians(90)), False)
sketch5.addGeometry(Part.ArcOfCircle(Part.Circle(App.Vector(0, 0, 0), App.Vector(0, 0, 1), 3), math.radians(-161.454125), math.radians(-18.545875)), False)
sketch5.addGeometry(Part.ArcOfCircle(Part.Circle(App.Vector(-2.607191, -0.874676, 0), App.Vector(0, 0, 1), 0.25), math.radians(90), math.radians(198.545875)), False)
sketch5.addGeometry(Part.LineSegment(App.Vector(-2.607191, -0.624676, 0), App.Vector(-2.5, -0.624676, 0)), False)
sketch5.addGeometry(Part.ArcOfCircle(Part.Circle(App.Vector(-2.5, 0, 0), App.Vector(0, 0, 1), 0.624676), math.radians(-90), math.radians(90)), False)
sketch5.addGeometry(Part.LineSegment(App.Vector(-2.5, 0.624676, 0), App.Vector(-2.607191, 0.624676, 0)), False)
sketch5.addGeometry(Part.ArcOfCircle(Part.Circle(App.Vector(-2.607191, 0.874676, 0), App.Vector(0, 0, 1), 0.25), math.radians(161.454125), math.radians(270)), False)
sketch5.addGeometry(Part.ArcOfCircle(Part.Circle(App.Vector(0, 0, 0), App.Vector(0, 0, 1), 3), math.radians(18.545875), math.radians(161.454125)), False)
sketch5.addGeometry(Part.ArcOfCircle(Part.Circle(App.Vector(2.607191, 0.874676, 0), App.Vector(0, 0, 1), 0.25), math.radians(-90), math.radians(18.545875)), False)
sketch5.addConstraint(Sketcher.Constraint("Tangent", 0, 2, 1, 1))
sketch5.addConstraint(Sketcher.Constraint("Tangent", 1, 2, 2, 1))
sketch5.addConstraint(Sketcher.Constraint("Tangent", 2, 2, 3, 2))
sketch5.addConstraint(Sketcher.Constraint("Tangent", 3, 1, 4, 2))
sketch5.addConstraint(Sketcher.Constraint("Tangent", 4, 1, 5, 2))
sketch5.addConstraint(Sketcher.Constraint("Tangent", 5, 1, 6, 1))
sketch5.addConstraint(Sketcher.Constraint("Tangent", 6, 2, 7, 1))
sketch5.addConstraint(Sketcher.Constraint("Tangent", 7, 2, 8, 1))
sketch5.addConstraint(Sketcher.Constraint("Tangent", 8, 2, 9, 2))
sketch5.addConstraint(Sketcher.Constraint("Tangent", 9, 1, 10, 2))
sketch5.addConstraint(Sketcher.Constraint("Tangent", 10, 1, 11, 2))
sketch5.addConstraint(Sketcher.Constraint("Tangent", 11, 1, 0, 1))
sketch5.addConstraint(Sketcher.Constraint("Horizontal", 0))
sketch5.addConstraint(Sketcher.Constraint("Horizontal", 2))
sketch5.addConstraint(Sketcher.Constraint("Horizontal", 6))
sketch5.addConstraint(Sketcher.Constraint("Horizontal", 8))
sketch5.addConstraint(Sketcher.Constraint("Coincident", 4, 3, -1, 1))
sketch5.addConstraint(Sketcher.Constraint("Coincident", 10, 3, -1, 1))
sketch5.addConstraint(Sketcher.Constraint("Equal", 3, 5))
sketch5.addConstraint(Sketcher.Constraint("Equal", 1, 7))
sketch5.addConstraint(Sketcher.Constraint("Equal", 5, 9))
sketch5.addConstraint(Sketcher.Constraint("Equal", 4, 10))
sketch5.addConstraint(Sketcher.Constraint("Equal", 9, 11))
sketch5.addConstraint(Sketcher.Constraint("Symmetric", 1, 3, 7, 3, -1, 1))
sketch5.addConstraint(Sketcher.Constraint("PointOnObject", 1, 3, -1))
sketch5.addConstraint(Sketcher.Constraint("Radius", 4, 3.0))
sketch5.addConstraint(Sketcher.Constraint("Radius", 3, 0.25))
sketch5.addConstraint(Sketcher.Constraint("DistanceX", 7, 3, 1, 3, 5.0))
sketch5.addConstraint(Sketcher.Constraint("Radius", 1, 0.624676))
sketch5.setExpression("Constraints[25]", "Params.sketch5_radius")
sketch5.setExpression("Constraints[26]", "Params.sketch5_radius2")
pad4 = doc.addObject("PartDesign::Pad", "Pad003")
body.addObject(pad4)
pad4.Profile = sketch5
pad4.setExpression("Length", "Params.pad4_length")
pad4.Reversed = True

doc.recompute()
